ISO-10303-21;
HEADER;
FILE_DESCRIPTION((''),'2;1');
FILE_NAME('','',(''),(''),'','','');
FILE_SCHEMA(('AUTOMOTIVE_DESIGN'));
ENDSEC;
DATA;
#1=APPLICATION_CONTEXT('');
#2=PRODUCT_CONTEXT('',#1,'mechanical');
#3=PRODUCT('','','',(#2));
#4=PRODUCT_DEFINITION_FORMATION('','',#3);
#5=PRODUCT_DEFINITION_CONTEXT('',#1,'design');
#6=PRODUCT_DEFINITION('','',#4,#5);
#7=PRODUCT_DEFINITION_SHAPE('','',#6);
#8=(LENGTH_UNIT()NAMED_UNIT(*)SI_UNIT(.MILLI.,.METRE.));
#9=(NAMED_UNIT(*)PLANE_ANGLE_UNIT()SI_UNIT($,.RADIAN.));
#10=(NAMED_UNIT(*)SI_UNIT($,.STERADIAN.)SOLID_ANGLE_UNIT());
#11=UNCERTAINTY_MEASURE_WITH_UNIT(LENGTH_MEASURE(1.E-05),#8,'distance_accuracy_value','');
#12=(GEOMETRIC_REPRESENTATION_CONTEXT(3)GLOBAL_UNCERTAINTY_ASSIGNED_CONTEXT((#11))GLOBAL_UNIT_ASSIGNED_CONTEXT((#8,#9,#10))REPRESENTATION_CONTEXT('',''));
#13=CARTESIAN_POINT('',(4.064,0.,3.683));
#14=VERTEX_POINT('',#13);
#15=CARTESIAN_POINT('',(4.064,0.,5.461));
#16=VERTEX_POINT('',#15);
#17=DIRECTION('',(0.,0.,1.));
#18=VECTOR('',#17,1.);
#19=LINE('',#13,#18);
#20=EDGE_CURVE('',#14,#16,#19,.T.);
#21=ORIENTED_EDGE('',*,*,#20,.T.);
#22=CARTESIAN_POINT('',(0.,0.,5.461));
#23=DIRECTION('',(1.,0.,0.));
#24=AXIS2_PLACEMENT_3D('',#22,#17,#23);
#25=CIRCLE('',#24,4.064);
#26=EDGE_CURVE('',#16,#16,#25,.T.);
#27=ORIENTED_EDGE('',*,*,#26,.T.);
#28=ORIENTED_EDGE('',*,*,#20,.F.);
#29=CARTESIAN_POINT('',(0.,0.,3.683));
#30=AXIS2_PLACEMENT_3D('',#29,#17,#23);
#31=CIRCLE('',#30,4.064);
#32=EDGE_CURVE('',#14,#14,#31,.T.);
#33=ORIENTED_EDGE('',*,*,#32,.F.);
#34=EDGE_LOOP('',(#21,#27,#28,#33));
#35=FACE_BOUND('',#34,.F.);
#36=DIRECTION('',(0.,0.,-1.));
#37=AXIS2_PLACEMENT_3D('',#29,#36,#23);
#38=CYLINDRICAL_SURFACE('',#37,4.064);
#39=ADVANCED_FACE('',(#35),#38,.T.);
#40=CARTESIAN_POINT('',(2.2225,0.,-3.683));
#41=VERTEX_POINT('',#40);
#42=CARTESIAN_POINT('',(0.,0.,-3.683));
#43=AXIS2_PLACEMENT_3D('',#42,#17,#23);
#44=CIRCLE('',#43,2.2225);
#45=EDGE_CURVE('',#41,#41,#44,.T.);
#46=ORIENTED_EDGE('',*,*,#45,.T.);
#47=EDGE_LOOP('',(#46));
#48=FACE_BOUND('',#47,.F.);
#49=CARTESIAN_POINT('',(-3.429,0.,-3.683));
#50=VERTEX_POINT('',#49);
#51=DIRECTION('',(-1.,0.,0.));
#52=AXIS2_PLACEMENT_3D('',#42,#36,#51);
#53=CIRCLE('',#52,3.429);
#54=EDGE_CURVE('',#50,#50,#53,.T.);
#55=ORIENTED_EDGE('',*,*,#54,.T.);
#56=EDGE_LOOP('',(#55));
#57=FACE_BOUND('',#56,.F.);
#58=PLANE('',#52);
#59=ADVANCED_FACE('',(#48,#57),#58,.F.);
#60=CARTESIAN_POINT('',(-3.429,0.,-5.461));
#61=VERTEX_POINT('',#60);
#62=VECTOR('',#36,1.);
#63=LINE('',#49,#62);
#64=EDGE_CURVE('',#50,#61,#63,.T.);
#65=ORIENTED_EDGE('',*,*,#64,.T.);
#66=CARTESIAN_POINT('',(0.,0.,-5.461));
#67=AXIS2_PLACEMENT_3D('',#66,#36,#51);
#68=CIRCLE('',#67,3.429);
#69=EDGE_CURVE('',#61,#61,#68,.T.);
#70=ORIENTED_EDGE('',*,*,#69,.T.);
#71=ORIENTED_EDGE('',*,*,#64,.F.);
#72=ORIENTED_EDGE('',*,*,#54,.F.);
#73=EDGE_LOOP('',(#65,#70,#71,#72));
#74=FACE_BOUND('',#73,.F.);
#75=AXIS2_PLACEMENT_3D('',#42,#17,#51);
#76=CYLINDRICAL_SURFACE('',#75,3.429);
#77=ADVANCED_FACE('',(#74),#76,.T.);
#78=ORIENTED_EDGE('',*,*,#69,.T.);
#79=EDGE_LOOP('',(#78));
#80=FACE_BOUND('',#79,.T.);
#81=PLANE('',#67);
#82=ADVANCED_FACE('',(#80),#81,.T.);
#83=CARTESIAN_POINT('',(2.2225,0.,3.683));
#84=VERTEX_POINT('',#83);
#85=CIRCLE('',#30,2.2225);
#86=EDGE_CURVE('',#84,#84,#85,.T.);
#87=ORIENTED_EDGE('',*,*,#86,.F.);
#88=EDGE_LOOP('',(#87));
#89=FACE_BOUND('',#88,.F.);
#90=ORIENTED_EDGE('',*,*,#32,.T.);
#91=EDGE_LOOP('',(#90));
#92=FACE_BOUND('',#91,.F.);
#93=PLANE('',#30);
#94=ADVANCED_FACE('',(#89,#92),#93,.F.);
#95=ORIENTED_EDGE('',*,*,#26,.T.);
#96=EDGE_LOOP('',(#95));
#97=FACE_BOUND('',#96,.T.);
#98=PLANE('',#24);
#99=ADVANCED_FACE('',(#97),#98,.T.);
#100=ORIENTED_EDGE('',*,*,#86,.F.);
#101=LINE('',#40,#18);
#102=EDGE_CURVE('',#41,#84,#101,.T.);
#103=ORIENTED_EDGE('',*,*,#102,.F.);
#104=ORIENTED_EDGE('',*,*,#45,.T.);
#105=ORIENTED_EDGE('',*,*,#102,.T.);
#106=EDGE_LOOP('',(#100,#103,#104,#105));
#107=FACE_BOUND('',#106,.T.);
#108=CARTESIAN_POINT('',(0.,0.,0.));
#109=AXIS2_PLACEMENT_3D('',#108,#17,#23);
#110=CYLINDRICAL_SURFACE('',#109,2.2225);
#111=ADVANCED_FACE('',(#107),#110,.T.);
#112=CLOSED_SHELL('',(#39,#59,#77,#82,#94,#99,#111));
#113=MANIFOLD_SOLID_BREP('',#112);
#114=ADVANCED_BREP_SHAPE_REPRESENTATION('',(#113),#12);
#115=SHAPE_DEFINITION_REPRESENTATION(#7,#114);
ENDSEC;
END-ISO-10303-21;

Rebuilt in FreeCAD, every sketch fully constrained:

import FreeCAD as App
import Part
import Sketcher

V = App.Vector
Q = App.Units.Quantity

doc = App.newDocument("Part")
params = doc.addObject("Spreadsheet::Sheet", "Params")
for row, (alias, value) in enumerate([
    ("sketch1_diameter", "0.175 in"),
    ("pad1_length", "0.29 in"),
    ("sketch2_diameter", "0.32 in"),
    ("pad2_length", "0.07 in"),
    ("sketch3_diameter", "0.27 in"),
    ("pad3_length", "0.07 in"),
], start=1):
    params.set(f"A{row}", alias)
    params.set(f"B{row}", "=" + value)
    params.setAlias(f"B{row}", alias)

body = doc.addObject("PartDesign::Body", "Body")

# Sketch on XY plane
sketch1 = body.newObject("Sketcher::SketchObject", "Sketch")
sketch1.AttachmentSupport = (doc.getObject("XY_Plane"), [""])
sketch1.MapMode = "FlatFace"
sketch1.addGeometry(Part.Circle(V(0, 0, 0), V(0, 0, 1), 2.2225), False)
sketch1.addConstraint([
    Sketcher.Constraint("Coincident", 0, 3, -1, 1),
    Sketcher.Constraint("Diameter", 0, Q("0.175 in")),
])
sketch1.setExpression("Constraints[1]", "Params.sketch1_diameter")
pad1 = body.newObject("PartDesign::Pad", "Pad")
pad1.Profile = sketch1
pad1.setExpression("Length", "Params.pad1_length")
pad1.Midplane = True

# Sketch on XY plane
sketch2 = body.newObject("Sketcher::SketchObject", "Sketch001")
sketch2.AttachmentSupport = (doc.getObject("XY_Plane"), [""])
sketch2.MapMode = "FlatFace"
sketch2.AttachmentOffset = App.Placement(V(0, 0, 0.145 * 25.4), App.Rotation())
sketch2.addGeometry(Part.Circle(V(0, 0, 0), V(0, 0, 1), 4.064), False)
sketch2.addConstraint([
    Sketcher.Constraint("Coincident", 0, 3, -1, 1),
    Sketcher.Constraint("Diameter", 0, Q("0.32 in")),
])
sketch2.setExpression("Constraints[1]", "Params.sketch2_diameter")
pad2 = body.newObject("PartDesign::Pad", "Pad001")
pad2.Profile = sketch2
pad2.setExpression("Length", "Params.pad2_length")

# Sketch on XY plane
sketch3 = body.newObject("Sketcher::SketchObject", "Sketch002")
sketch3.AttachmentSupport = (doc.getObject("XY_Plane"), [""])
sketch3.MapMode = "FlatFace"
sketch3.AttachmentOffset = App.Placement(V(0, 0, -0.145 * 25.4), App.Rotation())
sketch3.addGeometry(Part.Circle(V(0, 0, 0), V(0, 0, 1), 3.429), False)
sketch3.addConstraint([
    Sketcher.Constraint("Coincident", 0, 3, -1, 1),
    Sketcher.Constraint("Diameter", 0, Q("0.27 in")),
])
sketch3.setExpression("Constraints[1]", "Params.sketch3_diameter")
pad3 = body.newObject("PartDesign::Pad", "Pad002")
pad3.Profile = sketch3
pad3.setExpression("Length", "Params.pad3_length")
pad3.Reversed = True

doc.recompute()
